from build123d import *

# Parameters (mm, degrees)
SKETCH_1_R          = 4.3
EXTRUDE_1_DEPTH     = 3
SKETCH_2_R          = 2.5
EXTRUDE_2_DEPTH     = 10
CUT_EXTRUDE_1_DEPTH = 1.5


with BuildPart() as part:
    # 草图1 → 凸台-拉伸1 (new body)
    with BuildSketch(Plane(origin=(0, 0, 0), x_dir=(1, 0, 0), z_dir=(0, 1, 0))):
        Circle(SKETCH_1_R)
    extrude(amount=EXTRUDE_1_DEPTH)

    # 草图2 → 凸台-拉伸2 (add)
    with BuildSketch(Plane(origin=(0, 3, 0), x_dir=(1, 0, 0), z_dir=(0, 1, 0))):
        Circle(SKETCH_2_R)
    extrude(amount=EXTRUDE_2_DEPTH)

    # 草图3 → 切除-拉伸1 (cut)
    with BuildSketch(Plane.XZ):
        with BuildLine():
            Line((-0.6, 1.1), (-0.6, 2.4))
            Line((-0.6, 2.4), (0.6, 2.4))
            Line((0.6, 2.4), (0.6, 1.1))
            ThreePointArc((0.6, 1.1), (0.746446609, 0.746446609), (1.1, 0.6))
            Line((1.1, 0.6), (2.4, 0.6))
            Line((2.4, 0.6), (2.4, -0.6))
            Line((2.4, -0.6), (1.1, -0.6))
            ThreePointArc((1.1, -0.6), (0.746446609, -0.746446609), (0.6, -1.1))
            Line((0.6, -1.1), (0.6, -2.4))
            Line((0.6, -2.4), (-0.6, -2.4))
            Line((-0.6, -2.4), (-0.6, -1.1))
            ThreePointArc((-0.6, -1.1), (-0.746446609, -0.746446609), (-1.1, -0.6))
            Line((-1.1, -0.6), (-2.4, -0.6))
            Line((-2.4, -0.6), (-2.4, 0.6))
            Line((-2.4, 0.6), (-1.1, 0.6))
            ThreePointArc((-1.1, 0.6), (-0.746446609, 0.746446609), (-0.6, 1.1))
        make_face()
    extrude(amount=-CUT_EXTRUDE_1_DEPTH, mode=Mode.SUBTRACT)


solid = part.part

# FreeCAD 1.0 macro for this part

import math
import FreeCAD as App
import Part
import Sketcher
Q = App.Units.Quantity

doc = App.newDocument("Part")
body = doc.addObject("PartDesign::Body", "Body")

sketch1 = doc.addObject("Sketcher::SketchObject", "Sketch")
body.addObject(sketch1)
sketch1.AttachmentSupport = (doc.XZ_Plane, [""])
sketch1.MapMode = "FlatFace"
sketch1.addGeometry(Part.Circle(App.Vector(0, 0, 0), App.Vector(0, 0, 1), 4.3), False)
sketch1.addConstraint(Sketcher.Constraint("Coincident", 0, 3, -1, 1))
sketch1.addConstraint(Sketcher.Constraint("Diameter", 0, Q("8.6 mm")))
pad1 = doc.addObject("PartDesign::Pad", "Pad")
body.addObject(pad1)
pad1.Profile = sketch1
pad1.Length = 3
pad1.Reversed = True

sketch2 = doc.addObject("Sketcher::SketchObject", "Sketch001")
body.addObject(sketch2)
sketch2.AttachmentSupport = (doc.XZ_Plane, [""])
sketch2.MapMode = "FlatFace"
sketch2.AttachmentOffset = App.Placement(App.Vector(0, 0, -3), App.Rotation())
sketch2.addGeometry(Part.Circle(App.Vector(0, 0, 0), App.Vector(0, 0, 1), 2.5), False)
sketch2.addConstraint(Sketcher.Constraint("Coincident", 0, 3, -1, 1))
sketch2.addConstraint(Sketcher.Constraint("Diameter", 0, Q("5 mm")))
pad2 = doc.addObject("PartDesign::Pad", "Pad001")
body.addObject(pad2)
pad2.Profile = sketch2
pad2.Length = 10
pad2.Reversed = True

sketch3 = doc.addObject("Sketcher::SketchObject", "Sketch002")
body.addObject(sketch3)
sketch3.AttachmentSupport = (doc.XZ_Plane, [""])
sketch3.MapMode = "FlatFace"
sketch3.addGeometry(Part.LineSegment(App.Vector(-0.6, 2.4, 0), App.Vector(-0.6, 1.1, 0)), False)
sketch3.addGeometry(Part.ArcOfCircle(Part.Circle(App.Vector(-1.1, 1.1, 0), App.Vector(0, 0, 1), 0.5), math.radians(-90), math.radians(0)), False)
sketch3.addGeometry(Part.LineSegment(App.Vector(-1.1, 0.6, 0), App.Vector(-2.4, 0.6, 0)), False)
sketch3.addGeometry(Part.LineSegment(App.Vector(-2.4, 0.6, 0), App.Vector(-2.4, -0.6, 0)), False)
sketch3.addGeometry(Part.LineSegment(App.Vector(-2.4, -0.6, 0), App.Vector(-1.1, -0.6, 0)), False)
sketch3.addGeometry(Part.ArcOfCircle(Part.Circle(App.Vector(-1.1, -1.1, 0), App.Vector(0, 0, 1), 0.5), math.radians(0), math.radians(90)), False)
sketch3.addGeometry(Part.LineSegment(App.Vector(-0.6, -1.1, 0), App.Vector(-0.6, -2.4, 0)), False)
sketch3.addGeometry(Part.LineSegment(App.Vector(-0.6, -2.4, 0), App.Vector(0.6, -2.4, 0)), False)
sketch3.addGeometry(Part.LineSegment(App.Vector(0.6, -2.4, 0), App.Vector(0.6, -1.1, 0)), False)
sketch3.addGeometry(Part.ArcOfCircle(Part.Circle(App.Vector(1.1, -1.1, 0), App.Vector(0, 0, 1), 0.5), math.radians(90), math.radians(180)), False)
sketch3.addGeometry(Part.LineSegment(App.Vector(1.1, -0.6, 0), App.Vector(2.4, -0.6, 0)), False)
sketch3.addGeometry(Part.LineSegment(App.Vector(2.4, -0.6, 0), App.Vector(2.4, 0.6, 0)), False)
sketch3.addGeometry(Part.LineSegment(App.Vector(2.4, 0.6, 0), App.Vector(1.1, 0.6, 0)), False)
sketch3.addGeometry(Part.ArcOfCircle(Part.Circle(App.Vector(1.1, 1.1, 0), App.Vector(0, 0, 1), 0.5), math.radians(180), math.radians(270)), False)
sketch3.addGeometry(Part.LineSegment(App.Vector(0.6, 1.1, 0), App.Vector(0.6, 2.4, 0)), False)
sketch3.addGeometry(Part.LineSegment(App.Vector(0.6, 2.4, 0), App.Vector(-0.6, 2.4, 0)), False)
sketch3.addConstraint(Sketcher.Constraint("Tangent", 0, 2, 1, 2))
sketch3.addConstraint(Sketcher.Constraint("Tangent", 1, 1, 2, 1))
sketch3.addConstraint(Sketcher.Constraint("Coincident", 2, 2, 3, 1))
sketch3.addConstraint(Sketcher.Constraint("Coincident", 3, 2, 4, 1))
sketch3.addConstraint(Sketcher.Constraint("Tangent", 4, 2, 5, 2))
sketch3.addConstraint(Sketcher.Constraint("Tangent", 5, 1, 6, 1))
sketch3.addConstraint(Sketcher.Constraint("Coincident", 6, 2, 7, 1))
sketch3.addConstraint(Sketcher.Constraint("Coincident", 7, 2, 8, 1))
sketch3.addConstraint(Sketcher.Constraint("Tangent", 8, 2, 9, 2))
sketch3.addConstraint(Sketcher.Constraint("Tangent", 9, 1, 10, 1))
sketch3.addConstraint(Sketcher.Constraint("Coincident", 10, 2, 11, 1))
sketch3.addConstraint(Sketcher.Constraint("Coincident", 11, 2, 12, 1))
sketch3.addConstraint(Sketcher.Constraint("Tangent", 12, 2, 13, 2))
sketch3.addConstraint(Sketcher.Constraint("Tangent", 13, 1, 14, 1))
sketch3.addConstraint(Sketcher.Constraint("Coincident", 14, 2, 15, 1))
sketch3.addConstraint(Sketcher.Constraint("Coincident", 15, 2, 0, 1))
sketch3.addConstraint(Sketcher.Constraint("Vertical", 0))
sketch3.addConstraint(Sketcher.Constraint("Horizontal", 2))
sketch3.addConstraint(Sketcher.Constraint("Vertical", 3))
sketch3.addConstraint(Sketcher.Constraint("Horizontal", 4))
sketch3.addConstraint(Sketcher.Constraint("Vertical", 6))
sketch3.addConstraint(Sketcher.Constraint("Horizontal", 7))
sketch3.addConstraint(Sketcher.Constraint("Vertical", 8))
sketch3.addConstraint(Sketcher.Constraint("Horizontal", 10))
sketch3.addConstraint(Sketcher.Constraint("Vertical", 11))
sketch3.addConstraint(Sketcher.Constraint("Horizontal", 12))
sketch3.addConstraint(Sketcher.Constraint("Vertical", 14))
sketch3.addConstraint(Sketcher.Constraint("Horizontal", 15))
sketch3.addConstraint(Sketcher.Constraint("Equal", 1, 5))
sketch3.addConstraint(Sketcher.Constraint("Equal", 5, 9))
sketch3.addConstraint(Sketcher.Constraint("Equal", 9, 13))
sketch3.addConstraint(Sketcher.Constraint("Symmetric", 1, 3, 9, 3, -1, 1))
sketch3.addConstraint(Sketcher.Constraint("Symmetric", 5, 3, 13, 3, -1, 1))
sketch3.addConstraint(Sketcher.Constraint("Symmetric", 5, 3, 9, 3, -2))
sketch3.addConstraint(Sketcher.Constraint("Equal", 4, 10))
sketch3.addConstraint(Sketcher.Constraint("Equal", 12, 0))
sketch3.addConstraint(Sketcher.Constraint("Equal", 15, 3))
sketch3.addConstraint(Sketcher.Constraint("Equal", 0, 6))
sketch3.addConstraint(Sketcher.Constraint("Radius", 1, Q("0.5 mm")))
sketch3.addConstraint(Sketcher.Constraint("DistanceX", 2, 2, 2, 1, Q("1.3 mm")))
sketch3.addConstraint(Sketcher.Constraint("DistanceX", 7, 1, 7, 2, Q("1.2 mm")))
pocket1 = doc.addObject("PartDesign::Pocket", "Pocket")
body.addObject(pocket1)
pocket1.Profile = sketch3
pocket1.Length = 1.5

doc.recompute()
